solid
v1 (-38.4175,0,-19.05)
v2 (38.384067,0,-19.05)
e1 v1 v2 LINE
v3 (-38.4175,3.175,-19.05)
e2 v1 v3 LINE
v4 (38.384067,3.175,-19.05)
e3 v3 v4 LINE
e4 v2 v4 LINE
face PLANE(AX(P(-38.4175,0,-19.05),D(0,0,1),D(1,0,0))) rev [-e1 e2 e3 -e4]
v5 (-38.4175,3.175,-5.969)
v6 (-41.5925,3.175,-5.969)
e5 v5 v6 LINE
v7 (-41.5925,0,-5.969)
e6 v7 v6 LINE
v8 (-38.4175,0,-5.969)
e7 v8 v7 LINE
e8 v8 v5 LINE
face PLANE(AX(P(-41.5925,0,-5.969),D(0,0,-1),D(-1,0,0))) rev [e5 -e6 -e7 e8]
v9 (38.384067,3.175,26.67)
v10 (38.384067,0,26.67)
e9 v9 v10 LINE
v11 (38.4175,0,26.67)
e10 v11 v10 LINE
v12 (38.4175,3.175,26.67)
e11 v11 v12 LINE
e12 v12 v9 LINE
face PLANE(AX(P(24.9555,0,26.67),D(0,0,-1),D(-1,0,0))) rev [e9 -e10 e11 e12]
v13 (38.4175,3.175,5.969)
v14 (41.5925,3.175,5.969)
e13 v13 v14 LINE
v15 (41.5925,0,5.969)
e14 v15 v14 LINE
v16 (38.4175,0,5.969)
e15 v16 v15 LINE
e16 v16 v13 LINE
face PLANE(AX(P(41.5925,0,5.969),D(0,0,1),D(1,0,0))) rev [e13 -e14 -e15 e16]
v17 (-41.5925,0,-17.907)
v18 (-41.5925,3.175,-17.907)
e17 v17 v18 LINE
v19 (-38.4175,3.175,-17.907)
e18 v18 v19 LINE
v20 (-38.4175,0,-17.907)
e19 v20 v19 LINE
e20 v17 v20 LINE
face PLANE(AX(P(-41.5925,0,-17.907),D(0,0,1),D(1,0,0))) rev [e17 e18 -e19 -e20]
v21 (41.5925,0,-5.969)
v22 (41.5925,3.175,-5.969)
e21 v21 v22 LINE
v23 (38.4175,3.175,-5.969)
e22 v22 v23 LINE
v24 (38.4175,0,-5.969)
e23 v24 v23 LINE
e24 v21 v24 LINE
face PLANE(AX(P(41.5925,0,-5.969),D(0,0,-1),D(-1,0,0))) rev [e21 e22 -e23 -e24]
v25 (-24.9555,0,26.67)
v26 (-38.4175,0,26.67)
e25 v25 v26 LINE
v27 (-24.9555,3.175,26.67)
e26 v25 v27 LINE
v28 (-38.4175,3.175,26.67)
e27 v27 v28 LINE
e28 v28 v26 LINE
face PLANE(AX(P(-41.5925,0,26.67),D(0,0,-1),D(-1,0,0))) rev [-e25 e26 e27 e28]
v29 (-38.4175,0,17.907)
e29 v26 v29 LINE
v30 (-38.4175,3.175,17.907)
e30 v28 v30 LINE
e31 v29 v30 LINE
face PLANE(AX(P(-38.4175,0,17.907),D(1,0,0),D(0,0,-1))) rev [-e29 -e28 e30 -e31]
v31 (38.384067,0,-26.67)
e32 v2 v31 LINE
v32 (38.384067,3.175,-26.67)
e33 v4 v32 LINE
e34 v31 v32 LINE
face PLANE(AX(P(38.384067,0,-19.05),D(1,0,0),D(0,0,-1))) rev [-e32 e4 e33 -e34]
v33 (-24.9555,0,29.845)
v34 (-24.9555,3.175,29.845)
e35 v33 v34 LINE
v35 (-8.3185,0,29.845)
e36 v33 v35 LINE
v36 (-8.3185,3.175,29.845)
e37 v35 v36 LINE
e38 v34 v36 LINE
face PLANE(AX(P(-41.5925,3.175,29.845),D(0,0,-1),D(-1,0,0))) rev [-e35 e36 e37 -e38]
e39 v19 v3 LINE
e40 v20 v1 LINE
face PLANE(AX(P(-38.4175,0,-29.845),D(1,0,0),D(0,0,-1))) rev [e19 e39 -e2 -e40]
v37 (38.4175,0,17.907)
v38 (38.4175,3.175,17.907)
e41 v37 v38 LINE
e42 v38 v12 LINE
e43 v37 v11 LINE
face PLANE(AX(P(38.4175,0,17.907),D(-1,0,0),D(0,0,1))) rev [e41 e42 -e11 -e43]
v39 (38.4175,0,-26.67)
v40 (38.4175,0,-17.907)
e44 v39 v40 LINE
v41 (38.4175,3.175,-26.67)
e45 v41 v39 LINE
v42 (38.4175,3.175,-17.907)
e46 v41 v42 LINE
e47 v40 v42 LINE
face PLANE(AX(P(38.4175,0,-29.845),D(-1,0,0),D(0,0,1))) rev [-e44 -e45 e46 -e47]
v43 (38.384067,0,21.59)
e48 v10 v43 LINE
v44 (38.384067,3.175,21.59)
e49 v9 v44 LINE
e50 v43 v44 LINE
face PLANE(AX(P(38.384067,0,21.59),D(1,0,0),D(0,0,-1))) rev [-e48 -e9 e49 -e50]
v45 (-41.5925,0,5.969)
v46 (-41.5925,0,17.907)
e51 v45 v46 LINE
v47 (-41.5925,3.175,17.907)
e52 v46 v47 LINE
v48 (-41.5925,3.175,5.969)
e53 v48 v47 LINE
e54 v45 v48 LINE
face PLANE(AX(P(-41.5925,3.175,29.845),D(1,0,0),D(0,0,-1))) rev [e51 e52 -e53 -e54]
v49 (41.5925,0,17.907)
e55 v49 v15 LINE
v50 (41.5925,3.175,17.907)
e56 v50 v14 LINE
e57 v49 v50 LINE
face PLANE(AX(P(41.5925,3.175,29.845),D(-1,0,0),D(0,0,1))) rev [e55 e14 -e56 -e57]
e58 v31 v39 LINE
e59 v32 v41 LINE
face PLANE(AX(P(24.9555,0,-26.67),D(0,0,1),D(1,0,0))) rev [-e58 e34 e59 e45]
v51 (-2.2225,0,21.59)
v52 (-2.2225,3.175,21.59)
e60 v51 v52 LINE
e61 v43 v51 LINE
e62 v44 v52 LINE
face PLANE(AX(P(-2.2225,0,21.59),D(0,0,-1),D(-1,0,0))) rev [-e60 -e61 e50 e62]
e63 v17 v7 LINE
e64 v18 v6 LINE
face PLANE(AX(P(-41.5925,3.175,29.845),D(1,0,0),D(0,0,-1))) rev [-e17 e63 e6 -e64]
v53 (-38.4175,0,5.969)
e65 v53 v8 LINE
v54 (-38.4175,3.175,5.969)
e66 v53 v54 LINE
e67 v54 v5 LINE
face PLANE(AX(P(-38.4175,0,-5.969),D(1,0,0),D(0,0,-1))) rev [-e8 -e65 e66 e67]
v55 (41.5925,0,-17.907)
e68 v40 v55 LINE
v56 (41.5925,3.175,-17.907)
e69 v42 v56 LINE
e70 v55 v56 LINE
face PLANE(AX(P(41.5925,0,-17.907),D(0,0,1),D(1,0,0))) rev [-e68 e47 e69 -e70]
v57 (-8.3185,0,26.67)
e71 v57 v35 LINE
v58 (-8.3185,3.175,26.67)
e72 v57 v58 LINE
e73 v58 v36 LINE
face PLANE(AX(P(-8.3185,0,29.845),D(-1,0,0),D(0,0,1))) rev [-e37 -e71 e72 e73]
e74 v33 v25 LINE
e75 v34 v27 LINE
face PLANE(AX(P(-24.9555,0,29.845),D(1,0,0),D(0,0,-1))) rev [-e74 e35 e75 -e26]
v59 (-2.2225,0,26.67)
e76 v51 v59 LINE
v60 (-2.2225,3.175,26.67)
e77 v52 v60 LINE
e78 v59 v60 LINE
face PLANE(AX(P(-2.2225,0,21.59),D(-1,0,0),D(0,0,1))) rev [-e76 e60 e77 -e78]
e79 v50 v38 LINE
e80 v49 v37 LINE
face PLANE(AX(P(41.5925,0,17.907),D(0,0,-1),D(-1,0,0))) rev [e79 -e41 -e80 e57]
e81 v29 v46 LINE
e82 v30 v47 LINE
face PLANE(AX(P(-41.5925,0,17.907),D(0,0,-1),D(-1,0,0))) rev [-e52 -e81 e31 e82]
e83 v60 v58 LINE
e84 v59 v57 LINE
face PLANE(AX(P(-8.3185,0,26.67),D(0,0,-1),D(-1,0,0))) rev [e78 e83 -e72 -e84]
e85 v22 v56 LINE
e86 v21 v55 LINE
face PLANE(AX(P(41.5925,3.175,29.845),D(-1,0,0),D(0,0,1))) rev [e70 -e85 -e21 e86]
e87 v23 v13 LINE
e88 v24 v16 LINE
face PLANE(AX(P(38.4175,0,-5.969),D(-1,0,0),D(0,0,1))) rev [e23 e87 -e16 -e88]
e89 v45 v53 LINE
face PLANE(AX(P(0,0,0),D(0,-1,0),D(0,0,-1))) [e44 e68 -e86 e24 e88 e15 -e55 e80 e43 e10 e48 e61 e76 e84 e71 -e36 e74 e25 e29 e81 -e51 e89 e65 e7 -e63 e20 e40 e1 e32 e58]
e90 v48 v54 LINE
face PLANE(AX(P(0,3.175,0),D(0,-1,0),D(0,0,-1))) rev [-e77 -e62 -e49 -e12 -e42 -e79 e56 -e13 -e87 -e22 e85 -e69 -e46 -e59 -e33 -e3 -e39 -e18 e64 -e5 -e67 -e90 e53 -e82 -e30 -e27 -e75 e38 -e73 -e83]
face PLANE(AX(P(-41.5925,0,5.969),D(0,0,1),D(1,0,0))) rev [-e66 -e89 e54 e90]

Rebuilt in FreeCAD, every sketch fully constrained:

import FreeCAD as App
import Part
import Sketcher

V = App.Vector
Q = App.Units.Quantity


def add_polygon(sketch, points):
    """Adds a closed chain of lines whose ends are joined by coincident constraints."""
    first, n = sketch.GeometryCount, len(points)
    for a, b in zip(points, points[1:] + points[:1]):
        sketch.addGeometry(Part.LineSegment(App.Vector(*a, 0), App.Vector(*b, 0)), False)
    for i in range(n):
        sketch.addConstraint(Sketcher.Constraint("Coincident", first + i, 2, first + (i + 1) % n, 1))

doc = App.newDocument("Part")
params = doc.addObject("Spreadsheet::Sheet", "Params")
for row, (alias, value) in enumerate([
    ("sketch1_height", "2.35 in"),
    ("sketch1_width", "3.275 in"),
    ("pad1_length", "0.125 in"),
    ("sketch2_width", "0.655 in"),
    ("sketch2_height", "0.125 in"),
    ("pocket1_length", "0.125 in"),
    ("linearpattern_pitch", "1.31 in"),
    ("sketch3_height", "0.47 in"),
    ("sketch3_width", "0.125 in"),
    ("pocket2_length", "0.125 in"),
    ("linearpattern2_pitch", "0.94 in"),
    ("pocket3_length", "0.125 in"),
], start=1):
    params.set(f"A{row}", alias)
    params.set(f"B{row}", "=" + value)
    params.setAlias(f"B{row}", alias)

body = doc.addObject("PartDesign::Body", "Body")

sketch1 = body.newObject("Sketcher::SketchObject", "Sketch")
sketch1.AttachmentSupport = (doc.getObject("XZ_Plane"), [""])
sketch1.MapMode = "FlatFace"
add_polygon(sketch1, [(-41.5925, -29.845), (-41.5925, 29.845), (41.5925, 29.845), (41.5925, -29.845)])
sketch1.addConstraint([
    Sketcher.Constraint("Vertical", 0),
    Sketcher.Constraint("Horizontal", 1),
    Sketcher.Constraint("Vertical", 2),
    Sketcher.Constraint("Horizontal", 3),
    Sketcher.Constraint("Symmetric", 0, 2, 2, 2, -1, 1),
    Sketcher.Constraint("DistanceY", 0, 1, 0, 2, Q("2.35 in")),
    Sketcher.Constraint("DistanceX", 1, 1, 1, 2, Q("3.275 in")),
])
sketch1.setExpression("Constraints[9]", "Params.sketch1_height")
sketch1.setExpression("Constraints[10]", "Params.sketch1_width")
pad1 = body.newObject("PartDesign::Pad", "Pad")
pad1.Profile = sketch1
pad1.setExpression("Length", "Params.pad1_length")
pad1.Reversed = True

sketch2 = body.newObject("Sketcher::SketchObject", "Sketch001")
sketch2.AttachmentSupport = (doc.getObject("XZ_Plane"), [""])
sketch2.MapMode = "FlatFace"
sketch2.AttachmentOffset = App.Placement(V(0, 0, -0.125 * 25.4), App.Rotation())
add_polygon(sketch2, [(-41.5925, -29.845), (-41.5925, -26.67), (-24.9555, -26.67), (-24.9555, -29.845)])
add_polygon(sketch2, [(-41.5925, 26.67), (-41.5925, 29.845), (-24.9555, 29.845), (-24.9555, 26.67)])
sketch2.addConstraint([
    Sketcher.Constraint("Vertical", 0),
    Sketcher.Constraint("Horizontal", 1),
    Sketcher.Constraint("Vertical", 2),
    Sketcher.Constraint("Horizontal", 3),
    Sketcher.Constraint("Vertical", 4),
    Sketcher.Constraint("Horizontal", 5),
    Sketcher.Constraint("Vertical", 6),
    Sketcher.Constraint("Horizontal", 7),
    Sketcher.Constraint("Symmetric", 3, 2, 4, 2, -1),
    Sketcher.Constraint("Symmetric", 1, 2, 6, 2, -1),
    Sketcher.Constraint("DistanceY", 1, 2, 6, 2, Q("2.1 in")),
    Sketcher.Constraint("DistanceX", 1, 1, 1, 2, Q("0.655 in")),
    Sketcher.Constraint("DistanceY", 0, 1, 0, 2, Q("0.125 in")),
    Sketcher.Constraint("DistanceX", 0, 2, -1, 1, Q("1.6375 in")),
])
sketch2.setExpression("Constraints[19]", "Params.sketch2_width")
sketch2.setExpression("Constraints[20]", "Params.sketch2_height")
pocket1 = body.newObject("PartDesign::Pocket", "Pocket")
pocket1.Profile = sketch2
pocket1.setExpression("Length", "Params.pocket1_length")
pocket1.Reversed = True
doc.recompute()

linearpattern = body.newObject("PartDesign::LinearPattern", "LinearPattern")
linearpattern.Originals = [pocket1]
linearpattern.Direction = (doc.getObject("X_Axis"), [""])
linearpattern.Mode = "offset"
linearpattern.setExpression("Offset", "Params.linearpattern_pitch")
linearpattern.Occurrences = 3
body.Tip = linearpattern

sketch3 = body.newObject("Sketcher::SketchObject", "Sketch002")
sketch3.AttachmentSupport = (doc.getObject("XZ_Plane"), [""])
sketch3.MapMode = "FlatFace"
sketch3.AttachmentOffset = App.Placement(V(0, 0, -0.125 * 25.4), App.Rotation())
add_polygon(sketch3, [(-41.5925, -29.845), (-41.5925, -17.907), (-38.4175, -17.907), (-38.4175, -29.845)])
add_polygon(sketch3, [(38.4175, -29.845), (38.4175, -17.907), (41.5925, -17.907), (41.5925, -29.845)])
sketch3.addConstraint([
    Sketcher.Constraint("Vertical", 0),
    Sketcher.Constraint("Horizontal", 1),
    Sketcher.Constraint("Vertical", 2),
    Sketcher.Constraint("Horizontal", 3),
    Sketcher.Constraint("Vertical", 4),
    Sketcher.Constraint("Horizontal", 5),
    Sketcher.Constraint("Vertical", 6),
    Sketcher.Constraint("Horizontal", 7),
    Sketcher.Constraint("Symmetric", 1, 2, 4, 2, -2),
    Sketcher.Constraint("Symmetric", 3, 2, 6, 2, -2),
    Sketcher.Constraint("DistanceY", 0, 1, 0, 2, Q("0.47 in")),
    Sketcher.Constraint("DistanceX", 1, 1, 1, 2, Q("0.125 in")),
    Sketcher.Constraint("DistanceX", 0, 2, 4, 2, Q("3.15 in")),
    Sketcher.Constraint("DistanceY", 0, 2, -1, 1, Q("0.705 in")),
])
sketch3.setExpression("Constraints[18]", "Params.sketch3_height")
sketch3.setExpression("Constraints[19]", "Params.sketch3_width")
pocket2 = body.newObject("PartDesign::Pocket", "Pocket001")
pocket2.Profile = sketch3
pocket2.setExpression("Length", "Params.pocket2_length")
pocket2.Reversed = True
doc.recompute()

linearpattern2 = body.newObject("PartDesign::LinearPattern", "LinearPattern001")
linearpattern2.Originals = [pocket2]
linearpattern2.Direction = (doc.getObject("Z_Axis"), [""])
linearpattern2.Mode = "offset"
linearpattern2.setExpression("Offset", "Params.linearpattern2_pitch")
linearpattern2.Occurrences = 3
body.Tip = linearpattern2

sketch4 = body.newObject("Sketcher::SketchObject", "Sketch003")
sketch4.AttachmentSupport = (doc.getObject("XZ_Plane"), [""])
sketch4.MapMode = "FlatFace"
sketch4.AttachmentOffset = App.Placement(V(0, 0, -0.125 * 25.4), App.Rotation())
add_polygon(sketch4, [(-38.4175, -30.254108), (-38.4175, -19.05), (38.384067, -19.05), (38.384067, -30.254108)])
add_polygon(sketch4, [(-2.2225, 21.59), (-2.2225, 34.607857), (38.384067, 34.607857), (38.384067, 21.59)])
sketch4.addConstraint([
    Sketcher.Constraint("Vertical", 0),
    Sketcher.Constraint("Horizontal", 1),
    Sketcher.Constraint("Vertical", 2),
    Sketcher.Constraint("Horizontal", 3),
    Sketcher.Constraint("Vertical", 4),
    Sketcher.Constraint("Horizontal", 5),
    Sketcher.Constraint("Vertical", 6),
    Sketcher.Constraint("Horizontal", 7),
    Sketcher.Constraint("Vertical", 2, 2, 5, 2),
    Sketcher.Constraint("DistanceY", 1, 2, 6, 2, Q("1.6 in")),
    Sketcher.Constraint("DistanceY", 0, 2, -1, 1, Q("0.75 in")),
    Sketcher.Constraint("DistanceX", 0, 2, 4, 2, Q("1.425 in")),
    Sketcher.Constraint("DistanceX", 0, 2, -1, 1, Q("1.5125 in")),
    Sketcher.Constraint("DistanceY", 0, 1, 0, 2, Q("11.204108 mm")),
    Sketcher.Constraint("DistanceX", 1, 1, 1, 2, Q("76.801567 mm")),
    Sketcher.Constraint("DistanceY", 4, 1, 4, 2, Q("13.017857 mm")),
])
pocket3 = body.newObject("PartDesign::Pocket", "Pocket002")
pocket3.Profile = sketch4
pocket3.setExpression("Length", "Params.pocket3_length")
pocket3.Reversed = True

doc.recompute()
